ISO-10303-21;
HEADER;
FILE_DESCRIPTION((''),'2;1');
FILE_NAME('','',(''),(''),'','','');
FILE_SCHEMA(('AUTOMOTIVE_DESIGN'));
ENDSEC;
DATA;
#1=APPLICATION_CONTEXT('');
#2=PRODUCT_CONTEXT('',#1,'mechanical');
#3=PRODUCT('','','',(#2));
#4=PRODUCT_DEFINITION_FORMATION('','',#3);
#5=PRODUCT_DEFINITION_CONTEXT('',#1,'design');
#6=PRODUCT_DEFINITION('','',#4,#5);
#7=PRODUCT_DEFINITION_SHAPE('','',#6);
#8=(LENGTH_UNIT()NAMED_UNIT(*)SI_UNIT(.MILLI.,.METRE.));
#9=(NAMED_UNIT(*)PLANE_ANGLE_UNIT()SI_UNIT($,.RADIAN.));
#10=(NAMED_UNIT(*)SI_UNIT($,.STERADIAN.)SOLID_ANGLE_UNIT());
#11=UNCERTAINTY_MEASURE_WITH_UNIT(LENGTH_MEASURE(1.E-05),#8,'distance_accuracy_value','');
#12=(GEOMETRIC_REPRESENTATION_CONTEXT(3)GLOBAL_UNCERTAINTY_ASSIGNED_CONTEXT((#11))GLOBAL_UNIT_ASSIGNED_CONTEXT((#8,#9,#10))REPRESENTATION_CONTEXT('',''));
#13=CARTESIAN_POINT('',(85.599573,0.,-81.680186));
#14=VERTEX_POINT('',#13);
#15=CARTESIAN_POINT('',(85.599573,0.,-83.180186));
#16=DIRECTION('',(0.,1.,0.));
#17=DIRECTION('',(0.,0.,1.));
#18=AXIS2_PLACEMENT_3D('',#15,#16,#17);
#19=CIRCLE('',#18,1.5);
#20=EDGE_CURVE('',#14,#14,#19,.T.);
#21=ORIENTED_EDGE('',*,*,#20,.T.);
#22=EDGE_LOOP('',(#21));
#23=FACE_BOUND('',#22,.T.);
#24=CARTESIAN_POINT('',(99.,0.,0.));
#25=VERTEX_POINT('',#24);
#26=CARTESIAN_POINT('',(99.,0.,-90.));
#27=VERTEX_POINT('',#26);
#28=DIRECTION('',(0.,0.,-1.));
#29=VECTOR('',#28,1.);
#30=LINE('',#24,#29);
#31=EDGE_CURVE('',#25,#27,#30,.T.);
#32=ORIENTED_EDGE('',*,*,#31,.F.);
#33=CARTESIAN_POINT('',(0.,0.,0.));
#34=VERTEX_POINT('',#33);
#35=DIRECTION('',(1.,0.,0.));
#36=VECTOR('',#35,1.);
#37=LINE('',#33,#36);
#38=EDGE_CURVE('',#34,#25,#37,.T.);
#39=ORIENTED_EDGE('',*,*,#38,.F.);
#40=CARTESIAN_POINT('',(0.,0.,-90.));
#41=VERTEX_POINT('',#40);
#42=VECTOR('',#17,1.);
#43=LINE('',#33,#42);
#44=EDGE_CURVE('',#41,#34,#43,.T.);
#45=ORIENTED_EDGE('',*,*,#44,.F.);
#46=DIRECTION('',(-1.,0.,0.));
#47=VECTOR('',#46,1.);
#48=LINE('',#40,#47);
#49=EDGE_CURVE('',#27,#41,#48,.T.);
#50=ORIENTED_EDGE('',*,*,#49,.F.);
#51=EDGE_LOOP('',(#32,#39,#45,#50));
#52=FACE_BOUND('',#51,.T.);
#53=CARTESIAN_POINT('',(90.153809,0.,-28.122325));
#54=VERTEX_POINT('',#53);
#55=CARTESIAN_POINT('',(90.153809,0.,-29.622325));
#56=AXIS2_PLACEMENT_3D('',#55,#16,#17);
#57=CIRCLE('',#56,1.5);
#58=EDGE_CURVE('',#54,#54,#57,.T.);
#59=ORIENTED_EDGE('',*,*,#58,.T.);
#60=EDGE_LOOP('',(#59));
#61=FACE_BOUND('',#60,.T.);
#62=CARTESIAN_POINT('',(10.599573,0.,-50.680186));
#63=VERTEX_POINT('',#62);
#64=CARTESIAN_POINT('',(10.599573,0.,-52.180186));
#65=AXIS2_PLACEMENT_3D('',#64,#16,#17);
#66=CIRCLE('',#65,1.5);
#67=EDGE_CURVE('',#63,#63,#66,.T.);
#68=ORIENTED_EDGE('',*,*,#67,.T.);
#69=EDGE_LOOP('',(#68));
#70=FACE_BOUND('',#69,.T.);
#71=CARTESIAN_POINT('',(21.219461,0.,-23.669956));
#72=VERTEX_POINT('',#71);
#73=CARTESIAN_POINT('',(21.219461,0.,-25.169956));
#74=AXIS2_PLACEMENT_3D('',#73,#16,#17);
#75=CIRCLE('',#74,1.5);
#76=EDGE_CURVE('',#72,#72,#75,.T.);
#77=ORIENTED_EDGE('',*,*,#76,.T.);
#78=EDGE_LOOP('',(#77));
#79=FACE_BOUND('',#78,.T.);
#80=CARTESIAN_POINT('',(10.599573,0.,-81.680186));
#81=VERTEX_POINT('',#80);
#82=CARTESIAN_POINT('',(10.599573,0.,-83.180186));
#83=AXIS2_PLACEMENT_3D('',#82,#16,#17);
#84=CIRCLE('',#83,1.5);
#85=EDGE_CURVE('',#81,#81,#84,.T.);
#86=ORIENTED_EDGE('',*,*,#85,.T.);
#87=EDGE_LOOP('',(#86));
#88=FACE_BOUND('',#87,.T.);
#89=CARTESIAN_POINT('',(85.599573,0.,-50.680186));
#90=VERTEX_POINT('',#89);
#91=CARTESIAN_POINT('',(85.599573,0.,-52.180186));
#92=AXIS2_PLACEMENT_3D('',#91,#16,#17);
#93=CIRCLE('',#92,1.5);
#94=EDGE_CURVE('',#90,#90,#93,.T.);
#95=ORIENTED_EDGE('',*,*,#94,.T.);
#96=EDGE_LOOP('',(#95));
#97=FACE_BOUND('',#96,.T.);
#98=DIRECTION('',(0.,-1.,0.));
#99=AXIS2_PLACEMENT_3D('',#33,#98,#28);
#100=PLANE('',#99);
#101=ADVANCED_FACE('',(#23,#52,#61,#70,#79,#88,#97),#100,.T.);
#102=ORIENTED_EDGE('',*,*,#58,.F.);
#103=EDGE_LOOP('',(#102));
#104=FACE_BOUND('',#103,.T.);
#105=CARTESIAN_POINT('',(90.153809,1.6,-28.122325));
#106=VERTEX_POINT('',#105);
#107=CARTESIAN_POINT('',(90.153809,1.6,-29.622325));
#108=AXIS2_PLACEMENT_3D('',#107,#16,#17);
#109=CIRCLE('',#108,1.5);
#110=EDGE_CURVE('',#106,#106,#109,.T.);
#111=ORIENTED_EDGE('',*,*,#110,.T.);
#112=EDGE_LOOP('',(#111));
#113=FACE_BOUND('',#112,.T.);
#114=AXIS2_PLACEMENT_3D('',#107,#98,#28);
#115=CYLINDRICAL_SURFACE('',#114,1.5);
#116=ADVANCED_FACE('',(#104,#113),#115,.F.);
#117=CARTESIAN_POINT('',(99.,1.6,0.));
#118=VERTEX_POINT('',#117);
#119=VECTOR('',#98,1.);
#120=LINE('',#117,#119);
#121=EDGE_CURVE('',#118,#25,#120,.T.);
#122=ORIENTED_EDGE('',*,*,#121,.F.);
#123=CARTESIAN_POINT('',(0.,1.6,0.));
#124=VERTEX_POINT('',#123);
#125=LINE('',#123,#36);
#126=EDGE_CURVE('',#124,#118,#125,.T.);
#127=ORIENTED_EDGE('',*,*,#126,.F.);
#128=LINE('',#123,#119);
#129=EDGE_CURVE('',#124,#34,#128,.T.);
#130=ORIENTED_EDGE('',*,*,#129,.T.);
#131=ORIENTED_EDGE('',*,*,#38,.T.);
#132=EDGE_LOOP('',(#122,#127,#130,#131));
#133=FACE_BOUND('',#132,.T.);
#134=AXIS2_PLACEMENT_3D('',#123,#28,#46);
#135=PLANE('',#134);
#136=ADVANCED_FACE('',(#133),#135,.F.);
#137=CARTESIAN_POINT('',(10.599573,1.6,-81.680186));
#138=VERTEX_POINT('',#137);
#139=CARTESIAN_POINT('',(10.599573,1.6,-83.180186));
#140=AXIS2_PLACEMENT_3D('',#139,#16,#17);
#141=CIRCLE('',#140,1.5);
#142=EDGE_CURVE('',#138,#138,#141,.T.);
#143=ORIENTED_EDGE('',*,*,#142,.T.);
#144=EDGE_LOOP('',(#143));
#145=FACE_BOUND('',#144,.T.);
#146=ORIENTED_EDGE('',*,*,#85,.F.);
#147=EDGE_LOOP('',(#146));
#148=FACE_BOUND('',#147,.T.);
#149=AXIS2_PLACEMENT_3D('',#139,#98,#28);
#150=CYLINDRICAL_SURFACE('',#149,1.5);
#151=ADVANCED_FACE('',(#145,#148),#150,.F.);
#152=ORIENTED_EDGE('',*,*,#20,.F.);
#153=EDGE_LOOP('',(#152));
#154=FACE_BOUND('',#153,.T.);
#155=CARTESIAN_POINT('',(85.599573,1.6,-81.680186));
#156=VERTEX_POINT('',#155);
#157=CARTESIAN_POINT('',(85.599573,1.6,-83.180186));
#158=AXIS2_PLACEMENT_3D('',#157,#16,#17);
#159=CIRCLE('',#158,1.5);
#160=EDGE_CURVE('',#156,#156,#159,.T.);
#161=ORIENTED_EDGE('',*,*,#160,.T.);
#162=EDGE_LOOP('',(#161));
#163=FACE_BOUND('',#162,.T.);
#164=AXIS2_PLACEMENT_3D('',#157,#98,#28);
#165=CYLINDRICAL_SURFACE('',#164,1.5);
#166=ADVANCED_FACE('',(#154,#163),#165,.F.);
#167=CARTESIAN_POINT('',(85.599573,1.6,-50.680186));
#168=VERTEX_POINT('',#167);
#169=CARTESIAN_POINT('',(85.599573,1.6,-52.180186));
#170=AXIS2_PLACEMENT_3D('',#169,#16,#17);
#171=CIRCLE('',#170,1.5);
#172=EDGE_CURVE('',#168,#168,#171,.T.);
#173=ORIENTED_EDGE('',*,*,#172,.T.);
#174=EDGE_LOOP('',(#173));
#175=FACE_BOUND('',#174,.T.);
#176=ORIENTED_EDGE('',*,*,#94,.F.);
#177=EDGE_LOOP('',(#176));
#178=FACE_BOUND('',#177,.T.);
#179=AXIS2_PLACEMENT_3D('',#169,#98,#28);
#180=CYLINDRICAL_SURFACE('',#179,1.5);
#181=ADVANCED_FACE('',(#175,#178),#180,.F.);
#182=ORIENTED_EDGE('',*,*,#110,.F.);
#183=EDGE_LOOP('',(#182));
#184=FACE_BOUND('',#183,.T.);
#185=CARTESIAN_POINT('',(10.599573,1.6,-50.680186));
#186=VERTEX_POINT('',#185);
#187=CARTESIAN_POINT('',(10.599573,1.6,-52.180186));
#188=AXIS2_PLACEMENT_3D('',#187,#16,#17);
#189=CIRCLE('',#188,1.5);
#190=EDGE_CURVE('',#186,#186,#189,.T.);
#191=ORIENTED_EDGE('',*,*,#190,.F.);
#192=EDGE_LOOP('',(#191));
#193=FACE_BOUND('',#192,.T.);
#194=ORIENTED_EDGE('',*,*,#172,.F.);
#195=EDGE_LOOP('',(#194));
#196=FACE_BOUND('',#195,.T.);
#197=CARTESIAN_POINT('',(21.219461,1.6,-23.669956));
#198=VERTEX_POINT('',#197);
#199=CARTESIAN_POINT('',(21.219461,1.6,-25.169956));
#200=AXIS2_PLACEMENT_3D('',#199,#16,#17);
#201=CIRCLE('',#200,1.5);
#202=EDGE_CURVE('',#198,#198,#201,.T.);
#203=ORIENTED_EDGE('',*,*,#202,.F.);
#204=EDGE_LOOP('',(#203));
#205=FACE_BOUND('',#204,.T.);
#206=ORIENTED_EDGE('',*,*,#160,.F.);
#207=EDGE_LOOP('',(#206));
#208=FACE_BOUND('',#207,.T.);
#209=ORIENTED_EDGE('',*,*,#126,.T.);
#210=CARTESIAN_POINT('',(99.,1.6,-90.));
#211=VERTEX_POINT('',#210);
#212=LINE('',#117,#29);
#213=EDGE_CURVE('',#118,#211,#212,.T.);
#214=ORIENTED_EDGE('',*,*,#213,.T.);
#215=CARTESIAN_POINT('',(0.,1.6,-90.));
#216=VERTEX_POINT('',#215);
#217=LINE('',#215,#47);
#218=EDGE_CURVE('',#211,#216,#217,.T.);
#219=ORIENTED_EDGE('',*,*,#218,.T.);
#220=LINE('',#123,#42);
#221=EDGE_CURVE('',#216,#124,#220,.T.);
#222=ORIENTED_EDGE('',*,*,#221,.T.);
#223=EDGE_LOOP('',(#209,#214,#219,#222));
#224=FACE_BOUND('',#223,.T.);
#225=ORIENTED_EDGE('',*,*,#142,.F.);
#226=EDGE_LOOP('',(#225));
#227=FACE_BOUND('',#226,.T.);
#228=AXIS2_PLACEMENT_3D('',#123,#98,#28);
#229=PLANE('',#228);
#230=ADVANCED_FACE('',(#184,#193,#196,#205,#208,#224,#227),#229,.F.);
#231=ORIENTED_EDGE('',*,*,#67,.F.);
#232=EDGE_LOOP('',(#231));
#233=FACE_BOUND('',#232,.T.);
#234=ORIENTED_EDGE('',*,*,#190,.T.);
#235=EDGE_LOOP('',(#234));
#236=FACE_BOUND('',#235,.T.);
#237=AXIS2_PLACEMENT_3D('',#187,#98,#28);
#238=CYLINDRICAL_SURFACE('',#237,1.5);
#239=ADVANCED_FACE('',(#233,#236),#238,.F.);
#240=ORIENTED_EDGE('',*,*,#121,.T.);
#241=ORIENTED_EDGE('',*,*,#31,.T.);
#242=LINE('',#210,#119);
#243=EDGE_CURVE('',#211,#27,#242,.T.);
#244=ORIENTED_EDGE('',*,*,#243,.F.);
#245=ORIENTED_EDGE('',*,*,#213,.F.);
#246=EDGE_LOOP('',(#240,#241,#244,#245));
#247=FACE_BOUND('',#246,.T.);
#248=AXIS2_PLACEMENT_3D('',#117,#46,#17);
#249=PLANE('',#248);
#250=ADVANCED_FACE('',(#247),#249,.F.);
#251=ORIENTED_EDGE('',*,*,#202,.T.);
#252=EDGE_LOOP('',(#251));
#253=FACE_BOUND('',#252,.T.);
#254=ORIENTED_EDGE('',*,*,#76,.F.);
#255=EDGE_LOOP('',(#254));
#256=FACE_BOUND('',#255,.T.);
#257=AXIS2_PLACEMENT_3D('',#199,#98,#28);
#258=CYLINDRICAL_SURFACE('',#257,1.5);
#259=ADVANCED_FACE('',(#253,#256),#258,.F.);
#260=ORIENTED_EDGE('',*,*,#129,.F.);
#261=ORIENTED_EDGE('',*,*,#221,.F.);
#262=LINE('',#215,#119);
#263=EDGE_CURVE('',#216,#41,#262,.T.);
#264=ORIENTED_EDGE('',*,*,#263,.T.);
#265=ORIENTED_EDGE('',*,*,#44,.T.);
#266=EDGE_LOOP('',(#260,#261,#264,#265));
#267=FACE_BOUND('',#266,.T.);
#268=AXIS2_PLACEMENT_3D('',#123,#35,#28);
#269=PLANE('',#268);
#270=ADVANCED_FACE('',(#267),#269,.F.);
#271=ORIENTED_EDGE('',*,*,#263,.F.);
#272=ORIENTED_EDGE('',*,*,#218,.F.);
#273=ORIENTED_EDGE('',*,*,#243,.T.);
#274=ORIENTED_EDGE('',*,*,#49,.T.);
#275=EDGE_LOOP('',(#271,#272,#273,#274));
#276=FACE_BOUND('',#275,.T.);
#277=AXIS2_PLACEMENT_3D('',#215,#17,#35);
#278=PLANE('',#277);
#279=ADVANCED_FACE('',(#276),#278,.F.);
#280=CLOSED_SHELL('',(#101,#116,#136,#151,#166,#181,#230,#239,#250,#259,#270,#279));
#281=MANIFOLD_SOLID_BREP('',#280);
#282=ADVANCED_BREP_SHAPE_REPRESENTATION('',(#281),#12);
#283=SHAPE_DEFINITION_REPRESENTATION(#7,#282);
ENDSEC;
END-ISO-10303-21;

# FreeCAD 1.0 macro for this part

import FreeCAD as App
import Part
import Sketcher
from FreeCAD import Vector


def add_polygon(sketch, points):
    """Adds a closed chain of lines whose ends are joined by coincident constraints."""
    first, n = sketch.GeometryCount, len(points)
    for a, b in zip(points, points[1:] + points[:1]):
        sketch.addGeometry(Part.LineSegment(App.Vector(*a, 0), App.Vector(*b, 0)), False)
    for i in range(n):
        sketch.addConstraint(Sketcher.Constraint("Coincident", first + i, 2, first + (i + 1) % n, 1))

doc = App.newDocument("Part")
body = doc.addObject("PartDesign::Body", "Body")

# Sketch on XZ plane
sketch1 = body.newObject("Sketcher::SketchObject", "Sketch")
sketch1.AttachmentSupport = (doc.getObject("XZ_Plane"), [""])
sketch1.MapMode = "FlatFace"
add_polygon(sketch1, [(0, -90), (0, 0), (99, 0), (99, -90)])  # lines 0-3
sketch1.addGeometry(Part.Circle(Vector(21.2, -25.2, 0), Vector(0, 0, 1), 1.5), False)  # 4
sketch1.addGeometry(Part.Circle(Vector(10.6, -52.2, 0), Vector(0, 0, 1), 1.5), False)  # 5
sketch1.addGeometry(Part.Circle(Vector(90.2, -29.6, 0), Vector(0, 0, 1), 1.5), False)  # 6
sketch1.addGeometry(Part.Circle(Vector(85.6, -52.2, 0), Vector(0, 0, 1), 1.5), False)  # 7
sketch1.addGeometry(Part.Circle(Vector(10.6, -83.2, 0), Vector(0, 0, 1), 1.5), False)  # 8
sketch1.addGeometry(Part.Circle(Vector(85.6, -83.2, 0), Vector(0, 0, 1), 1.5), False)  # 9
sketch1.addConstraint(Sketcher.Constraint("Vertical", 0))
sketch1.addConstraint(Sketcher.Constraint("Horizontal", 1))
sketch1.addConstraint(Sketcher.Constraint("Vertical", 2))
sketch1.addConstraint(Sketcher.Constraint("Horizontal", 3))
sketch1.addConstraint(Sketcher.Constraint("Coincident", 0, 2, -1, 1))
sketch1.addConstraint(Sketcher.Constraint("Equal", 4, 5))
sketch1.addConstraint(Sketcher.Constraint("Equal", 5, 6))
sketch1.addConstraint(Sketcher.Constraint("Equal", 6, 7))
sketch1.addConstraint(Sketcher.Constraint("Equal", 7, 8))
sketch1.addConstraint(Sketcher.Constraint("Equal", 8, 9))
sketch1.addConstraint(Sketcher.Constraint("Horizontal", 5, 3, 7, 3))
sketch1.addConstraint(Sketcher.Constraint("Horizontal", 8, 3, 9, 3))
sketch1.addConstraint(Sketcher.Constraint("Vertical", 5, 3, 8, 3))
sketch1.addConstraint(Sketcher.Constraint("Vertical", 7, 3, 9, 3))
sketch1.addConstraint(Sketcher.Constraint("Diameter", 4, 3.0))
sketch1.addConstraint(Sketcher.Constraint("DistanceX", 1, 1, 1, 2, 99.0))
sketch1.addConstraint(Sketcher.Constraint("DistanceY", 0, 1, 0, 2, 90.0))
sketch1.addConstraint(Sketcher.Constraint("DistanceX", 5, 3, 7, 3, 75.0))
sketch1.addConstraint(Sketcher.Constraint("DistanceY", 8, 3, 5, 3, 31.0))
sketch1.addConstraint(Sketcher.Constraint("DistanceX", -1, 1, 4, 3, 21.219461))
sketch1.addConstraint(Sketcher.Constraint("DistanceX", -1, 1, 6, 3, 90.153809))
sketch1.addConstraint(Sketcher.Constraint("DistanceY", 5, 3, 4, 3, 27.01023))
sketch1.addConstraint(Sketcher.Constraint("DistanceY", 6, 3, 4, 3, 4.452368))
sketch1.addConstraint(Sketcher.Constraint("DistanceY", 4, 3, -1, 1, 25.169956))
sketch1.addConstraint(Sketcher.Constraint("DistanceX", -1, 1, 5, 3, 10.599573))
pad1 = body.newObject("PartDesign::Pad", "Pad")
pad1.Profile = sketch1
pad1.Length = 1.6
pad1.Reversed = True

doc.recompute()
